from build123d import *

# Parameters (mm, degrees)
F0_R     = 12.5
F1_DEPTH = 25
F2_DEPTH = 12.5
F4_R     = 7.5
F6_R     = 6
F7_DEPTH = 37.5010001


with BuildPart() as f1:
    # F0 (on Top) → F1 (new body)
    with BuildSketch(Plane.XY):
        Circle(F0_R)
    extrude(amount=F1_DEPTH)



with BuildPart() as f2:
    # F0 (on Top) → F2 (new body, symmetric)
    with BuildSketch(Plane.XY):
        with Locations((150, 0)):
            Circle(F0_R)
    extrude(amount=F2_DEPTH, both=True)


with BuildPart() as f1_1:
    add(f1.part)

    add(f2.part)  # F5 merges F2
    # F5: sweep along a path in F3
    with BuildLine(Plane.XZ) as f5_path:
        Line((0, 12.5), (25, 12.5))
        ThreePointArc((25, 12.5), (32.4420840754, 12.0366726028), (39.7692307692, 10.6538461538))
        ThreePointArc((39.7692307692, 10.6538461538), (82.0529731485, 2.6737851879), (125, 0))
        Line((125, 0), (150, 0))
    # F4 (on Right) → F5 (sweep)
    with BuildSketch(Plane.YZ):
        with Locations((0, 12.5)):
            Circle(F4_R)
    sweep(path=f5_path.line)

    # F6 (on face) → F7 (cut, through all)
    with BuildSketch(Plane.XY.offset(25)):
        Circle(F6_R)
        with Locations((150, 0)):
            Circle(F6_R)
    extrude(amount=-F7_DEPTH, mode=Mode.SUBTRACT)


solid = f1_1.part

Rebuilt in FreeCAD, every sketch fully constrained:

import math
import FreeCAD as App
import Part
import Sketcher
from FreeCAD import Vector

doc = App.newDocument("Part")
body = doc.addObject("PartDesign::Body", "Body")

sketch1 = doc.addObject("Sketcher::SketchObject", "Sketch")
body.addObject(sketch1)
sketch1.AttachmentSupport = (doc.XY_Plane, [""])
sketch1.MapMode = "FlatFace"
sketch1.addGeometry(Part.Circle(Vector(0, 0, 0), Vector(0, 0, 1), 12.5), False)
sketch1.addConstraint([
    Sketcher.Constraint("Coincident", 0, 3, -1, 1),
    Sketcher.Constraint("Diameter", 0, 25.0),
])
pad1 = doc.addObject("PartDesign::Pad", "Pad")
body.addObject(pad1)
pad1.Profile = sketch1
pad1.Length = 25
body2 = doc.addObject("PartDesign::Body", "Body001")

sketch2 = doc.addObject("Sketcher::SketchObject", "Sketch001")
body2.addObject(sketch2)
sketch2.AttachmentSupport = (doc.getObject("XY_Plane001"), [""])
sketch2.MapMode = "FlatFace"
sketch2.addGeometry(Part.Circle(Vector(150, 0, 0), Vector(0, 0, 1), 12.5), False)
sketch2.addConstraint([
    Sketcher.Constraint("PointOnObject", 0, 3, -1),
    Sketcher.Constraint("Diameter", 0, 25.0),
    Sketcher.Constraint("DistanceX", -1, 1, 0, 3, 150.0),
])
pad2 = doc.addObject("PartDesign::Pad", "Pad001")
body2.addObject(pad2)
pad2.Profile = sketch2
pad2.Length = 25
pad2.Midplane = True
body.AllowCompound = True
doc.recompute()

boolean = doc.addObject("PartDesign::Boolean", "Boolean")
body.addObject(boolean)
boolean.Type = "Fuse"
boolean.addObjects([body2])

sketch3 = doc.addObject("Sketcher::SketchObject", "Sketch002")
body.addObject(sketch3)
sketch3.AttachmentSupport = (doc.YZ_Plane, [""])
sketch3.MapMode = "FlatFace"
sketch3.addGeometry(Part.Circle(Vector(0, 12.5, 0), Vector(0, 0, 1), 7.5), False)
sketch3.addConstraint([
    Sketcher.Constraint("PointOnObject", 0, 3, -2),
    Sketcher.Constraint("Diameter", 0, 15.0),
    Sketcher.Constraint("DistanceY", -1, 1, 0, 3, 12.5),
])

sketch4 = doc.addObject("Sketcher::SketchObject", "Sketch003")
body.addObject(sketch4)
sketch4.AttachmentSupport = (doc.XZ_Plane, [""])
sketch4.MapMode = "FlatFace"
sketch4.addGeometry([
    Part.LineSegment(Vector(0, 12.5, 0), Vector(25, 12.5, 0)),
    Part.ArcOfCircle(Part.Circle(Vector(25, -47.5, 0), Vector(0, 0, 1), 60), math.radians(75.749967), math.radians(90)),
    Part.ArcOfCircle(Part.Circle(Vector(125, 346.25, 0), Vector(0, 0, 1), 346.25), math.radians(-104.250033), math.radians(-90)),
    Part.LineSegment(Vector(125, 0, 0), Vector(150, 0, 0)),
], False)
sketch4.addConstraint([
    Sketcher.Constraint("Tangent", 0, 2, 1, 2),
    Sketcher.Constraint("Tangent", 1, 1, 2, 1),
    Sketcher.Constraint("Tangent", 2, 2, 3, 1),
    Sketcher.Constraint("Horizontal", 0),
    Sketcher.Constraint("Horizontal", 3),
    Sketcher.Constraint("PointOnObject", 0, 1, -2),
    Sketcher.Constraint("PointOnObject", 2, 2, -1),
    Sketcher.Constraint("Equal", 0, 3),
    Sketcher.Constraint("Radius", 1, 60.0),
    Sketcher.Constraint("DistanceX", 0, 1, 0, 2, 25.0),
    Sketcher.Constraint("Radius", 2, 346.25),
    Sketcher.Constraint("DistanceX", -1, 1, 2, 3, 125.0),
])
doc.recompute()

additivepipe = doc.addObject("PartDesign::AdditivePipe", "AdditivePipe")
body.addObject(additivepipe)
additivepipe.Profile = sketch3
additivepipe.Spine = (sketch4, ["Edge1", "Edge2", "Edge3", "Edge4"])

sketch5 = doc.addObject("Sketcher::SketchObject", "Sketch004")
body.addObject(sketch5)
sketch5.AttachmentSupport = (doc.XY_Plane, [""])
sketch5.MapMode = "FlatFace"
sketch5.AttachmentOffset = App.Placement(Vector(0, 0, 25), App.Rotation())
sketch5.addGeometry([
    Part.Circle(Vector(0, 0, 0), Vector(0, 0, 1), 6),
    Part.Circle(Vector(150, 0, 0), Vector(0, 0, 1), 6),
], False)
sketch5.addConstraint([
    Sketcher.Constraint("Coincident", 0, 3, -1, 1),
    Sketcher.Constraint("Equal", 0, 1),
    Sketcher.Constraint("PointOnObject", 1, 3, -1),
    Sketcher.Constraint("Diameter", 0, 12.0),
    Sketcher.Constraint("DistanceX", -1, 1, 1, 3, 150.0),
])
pocket1 = doc.addObject("PartDesign::Pocket", "Pocket")
body.addObject(pocket1)
pocket1.Profile = sketch5
pocket1.Type = "ThroughAll"

doc.recompute()
